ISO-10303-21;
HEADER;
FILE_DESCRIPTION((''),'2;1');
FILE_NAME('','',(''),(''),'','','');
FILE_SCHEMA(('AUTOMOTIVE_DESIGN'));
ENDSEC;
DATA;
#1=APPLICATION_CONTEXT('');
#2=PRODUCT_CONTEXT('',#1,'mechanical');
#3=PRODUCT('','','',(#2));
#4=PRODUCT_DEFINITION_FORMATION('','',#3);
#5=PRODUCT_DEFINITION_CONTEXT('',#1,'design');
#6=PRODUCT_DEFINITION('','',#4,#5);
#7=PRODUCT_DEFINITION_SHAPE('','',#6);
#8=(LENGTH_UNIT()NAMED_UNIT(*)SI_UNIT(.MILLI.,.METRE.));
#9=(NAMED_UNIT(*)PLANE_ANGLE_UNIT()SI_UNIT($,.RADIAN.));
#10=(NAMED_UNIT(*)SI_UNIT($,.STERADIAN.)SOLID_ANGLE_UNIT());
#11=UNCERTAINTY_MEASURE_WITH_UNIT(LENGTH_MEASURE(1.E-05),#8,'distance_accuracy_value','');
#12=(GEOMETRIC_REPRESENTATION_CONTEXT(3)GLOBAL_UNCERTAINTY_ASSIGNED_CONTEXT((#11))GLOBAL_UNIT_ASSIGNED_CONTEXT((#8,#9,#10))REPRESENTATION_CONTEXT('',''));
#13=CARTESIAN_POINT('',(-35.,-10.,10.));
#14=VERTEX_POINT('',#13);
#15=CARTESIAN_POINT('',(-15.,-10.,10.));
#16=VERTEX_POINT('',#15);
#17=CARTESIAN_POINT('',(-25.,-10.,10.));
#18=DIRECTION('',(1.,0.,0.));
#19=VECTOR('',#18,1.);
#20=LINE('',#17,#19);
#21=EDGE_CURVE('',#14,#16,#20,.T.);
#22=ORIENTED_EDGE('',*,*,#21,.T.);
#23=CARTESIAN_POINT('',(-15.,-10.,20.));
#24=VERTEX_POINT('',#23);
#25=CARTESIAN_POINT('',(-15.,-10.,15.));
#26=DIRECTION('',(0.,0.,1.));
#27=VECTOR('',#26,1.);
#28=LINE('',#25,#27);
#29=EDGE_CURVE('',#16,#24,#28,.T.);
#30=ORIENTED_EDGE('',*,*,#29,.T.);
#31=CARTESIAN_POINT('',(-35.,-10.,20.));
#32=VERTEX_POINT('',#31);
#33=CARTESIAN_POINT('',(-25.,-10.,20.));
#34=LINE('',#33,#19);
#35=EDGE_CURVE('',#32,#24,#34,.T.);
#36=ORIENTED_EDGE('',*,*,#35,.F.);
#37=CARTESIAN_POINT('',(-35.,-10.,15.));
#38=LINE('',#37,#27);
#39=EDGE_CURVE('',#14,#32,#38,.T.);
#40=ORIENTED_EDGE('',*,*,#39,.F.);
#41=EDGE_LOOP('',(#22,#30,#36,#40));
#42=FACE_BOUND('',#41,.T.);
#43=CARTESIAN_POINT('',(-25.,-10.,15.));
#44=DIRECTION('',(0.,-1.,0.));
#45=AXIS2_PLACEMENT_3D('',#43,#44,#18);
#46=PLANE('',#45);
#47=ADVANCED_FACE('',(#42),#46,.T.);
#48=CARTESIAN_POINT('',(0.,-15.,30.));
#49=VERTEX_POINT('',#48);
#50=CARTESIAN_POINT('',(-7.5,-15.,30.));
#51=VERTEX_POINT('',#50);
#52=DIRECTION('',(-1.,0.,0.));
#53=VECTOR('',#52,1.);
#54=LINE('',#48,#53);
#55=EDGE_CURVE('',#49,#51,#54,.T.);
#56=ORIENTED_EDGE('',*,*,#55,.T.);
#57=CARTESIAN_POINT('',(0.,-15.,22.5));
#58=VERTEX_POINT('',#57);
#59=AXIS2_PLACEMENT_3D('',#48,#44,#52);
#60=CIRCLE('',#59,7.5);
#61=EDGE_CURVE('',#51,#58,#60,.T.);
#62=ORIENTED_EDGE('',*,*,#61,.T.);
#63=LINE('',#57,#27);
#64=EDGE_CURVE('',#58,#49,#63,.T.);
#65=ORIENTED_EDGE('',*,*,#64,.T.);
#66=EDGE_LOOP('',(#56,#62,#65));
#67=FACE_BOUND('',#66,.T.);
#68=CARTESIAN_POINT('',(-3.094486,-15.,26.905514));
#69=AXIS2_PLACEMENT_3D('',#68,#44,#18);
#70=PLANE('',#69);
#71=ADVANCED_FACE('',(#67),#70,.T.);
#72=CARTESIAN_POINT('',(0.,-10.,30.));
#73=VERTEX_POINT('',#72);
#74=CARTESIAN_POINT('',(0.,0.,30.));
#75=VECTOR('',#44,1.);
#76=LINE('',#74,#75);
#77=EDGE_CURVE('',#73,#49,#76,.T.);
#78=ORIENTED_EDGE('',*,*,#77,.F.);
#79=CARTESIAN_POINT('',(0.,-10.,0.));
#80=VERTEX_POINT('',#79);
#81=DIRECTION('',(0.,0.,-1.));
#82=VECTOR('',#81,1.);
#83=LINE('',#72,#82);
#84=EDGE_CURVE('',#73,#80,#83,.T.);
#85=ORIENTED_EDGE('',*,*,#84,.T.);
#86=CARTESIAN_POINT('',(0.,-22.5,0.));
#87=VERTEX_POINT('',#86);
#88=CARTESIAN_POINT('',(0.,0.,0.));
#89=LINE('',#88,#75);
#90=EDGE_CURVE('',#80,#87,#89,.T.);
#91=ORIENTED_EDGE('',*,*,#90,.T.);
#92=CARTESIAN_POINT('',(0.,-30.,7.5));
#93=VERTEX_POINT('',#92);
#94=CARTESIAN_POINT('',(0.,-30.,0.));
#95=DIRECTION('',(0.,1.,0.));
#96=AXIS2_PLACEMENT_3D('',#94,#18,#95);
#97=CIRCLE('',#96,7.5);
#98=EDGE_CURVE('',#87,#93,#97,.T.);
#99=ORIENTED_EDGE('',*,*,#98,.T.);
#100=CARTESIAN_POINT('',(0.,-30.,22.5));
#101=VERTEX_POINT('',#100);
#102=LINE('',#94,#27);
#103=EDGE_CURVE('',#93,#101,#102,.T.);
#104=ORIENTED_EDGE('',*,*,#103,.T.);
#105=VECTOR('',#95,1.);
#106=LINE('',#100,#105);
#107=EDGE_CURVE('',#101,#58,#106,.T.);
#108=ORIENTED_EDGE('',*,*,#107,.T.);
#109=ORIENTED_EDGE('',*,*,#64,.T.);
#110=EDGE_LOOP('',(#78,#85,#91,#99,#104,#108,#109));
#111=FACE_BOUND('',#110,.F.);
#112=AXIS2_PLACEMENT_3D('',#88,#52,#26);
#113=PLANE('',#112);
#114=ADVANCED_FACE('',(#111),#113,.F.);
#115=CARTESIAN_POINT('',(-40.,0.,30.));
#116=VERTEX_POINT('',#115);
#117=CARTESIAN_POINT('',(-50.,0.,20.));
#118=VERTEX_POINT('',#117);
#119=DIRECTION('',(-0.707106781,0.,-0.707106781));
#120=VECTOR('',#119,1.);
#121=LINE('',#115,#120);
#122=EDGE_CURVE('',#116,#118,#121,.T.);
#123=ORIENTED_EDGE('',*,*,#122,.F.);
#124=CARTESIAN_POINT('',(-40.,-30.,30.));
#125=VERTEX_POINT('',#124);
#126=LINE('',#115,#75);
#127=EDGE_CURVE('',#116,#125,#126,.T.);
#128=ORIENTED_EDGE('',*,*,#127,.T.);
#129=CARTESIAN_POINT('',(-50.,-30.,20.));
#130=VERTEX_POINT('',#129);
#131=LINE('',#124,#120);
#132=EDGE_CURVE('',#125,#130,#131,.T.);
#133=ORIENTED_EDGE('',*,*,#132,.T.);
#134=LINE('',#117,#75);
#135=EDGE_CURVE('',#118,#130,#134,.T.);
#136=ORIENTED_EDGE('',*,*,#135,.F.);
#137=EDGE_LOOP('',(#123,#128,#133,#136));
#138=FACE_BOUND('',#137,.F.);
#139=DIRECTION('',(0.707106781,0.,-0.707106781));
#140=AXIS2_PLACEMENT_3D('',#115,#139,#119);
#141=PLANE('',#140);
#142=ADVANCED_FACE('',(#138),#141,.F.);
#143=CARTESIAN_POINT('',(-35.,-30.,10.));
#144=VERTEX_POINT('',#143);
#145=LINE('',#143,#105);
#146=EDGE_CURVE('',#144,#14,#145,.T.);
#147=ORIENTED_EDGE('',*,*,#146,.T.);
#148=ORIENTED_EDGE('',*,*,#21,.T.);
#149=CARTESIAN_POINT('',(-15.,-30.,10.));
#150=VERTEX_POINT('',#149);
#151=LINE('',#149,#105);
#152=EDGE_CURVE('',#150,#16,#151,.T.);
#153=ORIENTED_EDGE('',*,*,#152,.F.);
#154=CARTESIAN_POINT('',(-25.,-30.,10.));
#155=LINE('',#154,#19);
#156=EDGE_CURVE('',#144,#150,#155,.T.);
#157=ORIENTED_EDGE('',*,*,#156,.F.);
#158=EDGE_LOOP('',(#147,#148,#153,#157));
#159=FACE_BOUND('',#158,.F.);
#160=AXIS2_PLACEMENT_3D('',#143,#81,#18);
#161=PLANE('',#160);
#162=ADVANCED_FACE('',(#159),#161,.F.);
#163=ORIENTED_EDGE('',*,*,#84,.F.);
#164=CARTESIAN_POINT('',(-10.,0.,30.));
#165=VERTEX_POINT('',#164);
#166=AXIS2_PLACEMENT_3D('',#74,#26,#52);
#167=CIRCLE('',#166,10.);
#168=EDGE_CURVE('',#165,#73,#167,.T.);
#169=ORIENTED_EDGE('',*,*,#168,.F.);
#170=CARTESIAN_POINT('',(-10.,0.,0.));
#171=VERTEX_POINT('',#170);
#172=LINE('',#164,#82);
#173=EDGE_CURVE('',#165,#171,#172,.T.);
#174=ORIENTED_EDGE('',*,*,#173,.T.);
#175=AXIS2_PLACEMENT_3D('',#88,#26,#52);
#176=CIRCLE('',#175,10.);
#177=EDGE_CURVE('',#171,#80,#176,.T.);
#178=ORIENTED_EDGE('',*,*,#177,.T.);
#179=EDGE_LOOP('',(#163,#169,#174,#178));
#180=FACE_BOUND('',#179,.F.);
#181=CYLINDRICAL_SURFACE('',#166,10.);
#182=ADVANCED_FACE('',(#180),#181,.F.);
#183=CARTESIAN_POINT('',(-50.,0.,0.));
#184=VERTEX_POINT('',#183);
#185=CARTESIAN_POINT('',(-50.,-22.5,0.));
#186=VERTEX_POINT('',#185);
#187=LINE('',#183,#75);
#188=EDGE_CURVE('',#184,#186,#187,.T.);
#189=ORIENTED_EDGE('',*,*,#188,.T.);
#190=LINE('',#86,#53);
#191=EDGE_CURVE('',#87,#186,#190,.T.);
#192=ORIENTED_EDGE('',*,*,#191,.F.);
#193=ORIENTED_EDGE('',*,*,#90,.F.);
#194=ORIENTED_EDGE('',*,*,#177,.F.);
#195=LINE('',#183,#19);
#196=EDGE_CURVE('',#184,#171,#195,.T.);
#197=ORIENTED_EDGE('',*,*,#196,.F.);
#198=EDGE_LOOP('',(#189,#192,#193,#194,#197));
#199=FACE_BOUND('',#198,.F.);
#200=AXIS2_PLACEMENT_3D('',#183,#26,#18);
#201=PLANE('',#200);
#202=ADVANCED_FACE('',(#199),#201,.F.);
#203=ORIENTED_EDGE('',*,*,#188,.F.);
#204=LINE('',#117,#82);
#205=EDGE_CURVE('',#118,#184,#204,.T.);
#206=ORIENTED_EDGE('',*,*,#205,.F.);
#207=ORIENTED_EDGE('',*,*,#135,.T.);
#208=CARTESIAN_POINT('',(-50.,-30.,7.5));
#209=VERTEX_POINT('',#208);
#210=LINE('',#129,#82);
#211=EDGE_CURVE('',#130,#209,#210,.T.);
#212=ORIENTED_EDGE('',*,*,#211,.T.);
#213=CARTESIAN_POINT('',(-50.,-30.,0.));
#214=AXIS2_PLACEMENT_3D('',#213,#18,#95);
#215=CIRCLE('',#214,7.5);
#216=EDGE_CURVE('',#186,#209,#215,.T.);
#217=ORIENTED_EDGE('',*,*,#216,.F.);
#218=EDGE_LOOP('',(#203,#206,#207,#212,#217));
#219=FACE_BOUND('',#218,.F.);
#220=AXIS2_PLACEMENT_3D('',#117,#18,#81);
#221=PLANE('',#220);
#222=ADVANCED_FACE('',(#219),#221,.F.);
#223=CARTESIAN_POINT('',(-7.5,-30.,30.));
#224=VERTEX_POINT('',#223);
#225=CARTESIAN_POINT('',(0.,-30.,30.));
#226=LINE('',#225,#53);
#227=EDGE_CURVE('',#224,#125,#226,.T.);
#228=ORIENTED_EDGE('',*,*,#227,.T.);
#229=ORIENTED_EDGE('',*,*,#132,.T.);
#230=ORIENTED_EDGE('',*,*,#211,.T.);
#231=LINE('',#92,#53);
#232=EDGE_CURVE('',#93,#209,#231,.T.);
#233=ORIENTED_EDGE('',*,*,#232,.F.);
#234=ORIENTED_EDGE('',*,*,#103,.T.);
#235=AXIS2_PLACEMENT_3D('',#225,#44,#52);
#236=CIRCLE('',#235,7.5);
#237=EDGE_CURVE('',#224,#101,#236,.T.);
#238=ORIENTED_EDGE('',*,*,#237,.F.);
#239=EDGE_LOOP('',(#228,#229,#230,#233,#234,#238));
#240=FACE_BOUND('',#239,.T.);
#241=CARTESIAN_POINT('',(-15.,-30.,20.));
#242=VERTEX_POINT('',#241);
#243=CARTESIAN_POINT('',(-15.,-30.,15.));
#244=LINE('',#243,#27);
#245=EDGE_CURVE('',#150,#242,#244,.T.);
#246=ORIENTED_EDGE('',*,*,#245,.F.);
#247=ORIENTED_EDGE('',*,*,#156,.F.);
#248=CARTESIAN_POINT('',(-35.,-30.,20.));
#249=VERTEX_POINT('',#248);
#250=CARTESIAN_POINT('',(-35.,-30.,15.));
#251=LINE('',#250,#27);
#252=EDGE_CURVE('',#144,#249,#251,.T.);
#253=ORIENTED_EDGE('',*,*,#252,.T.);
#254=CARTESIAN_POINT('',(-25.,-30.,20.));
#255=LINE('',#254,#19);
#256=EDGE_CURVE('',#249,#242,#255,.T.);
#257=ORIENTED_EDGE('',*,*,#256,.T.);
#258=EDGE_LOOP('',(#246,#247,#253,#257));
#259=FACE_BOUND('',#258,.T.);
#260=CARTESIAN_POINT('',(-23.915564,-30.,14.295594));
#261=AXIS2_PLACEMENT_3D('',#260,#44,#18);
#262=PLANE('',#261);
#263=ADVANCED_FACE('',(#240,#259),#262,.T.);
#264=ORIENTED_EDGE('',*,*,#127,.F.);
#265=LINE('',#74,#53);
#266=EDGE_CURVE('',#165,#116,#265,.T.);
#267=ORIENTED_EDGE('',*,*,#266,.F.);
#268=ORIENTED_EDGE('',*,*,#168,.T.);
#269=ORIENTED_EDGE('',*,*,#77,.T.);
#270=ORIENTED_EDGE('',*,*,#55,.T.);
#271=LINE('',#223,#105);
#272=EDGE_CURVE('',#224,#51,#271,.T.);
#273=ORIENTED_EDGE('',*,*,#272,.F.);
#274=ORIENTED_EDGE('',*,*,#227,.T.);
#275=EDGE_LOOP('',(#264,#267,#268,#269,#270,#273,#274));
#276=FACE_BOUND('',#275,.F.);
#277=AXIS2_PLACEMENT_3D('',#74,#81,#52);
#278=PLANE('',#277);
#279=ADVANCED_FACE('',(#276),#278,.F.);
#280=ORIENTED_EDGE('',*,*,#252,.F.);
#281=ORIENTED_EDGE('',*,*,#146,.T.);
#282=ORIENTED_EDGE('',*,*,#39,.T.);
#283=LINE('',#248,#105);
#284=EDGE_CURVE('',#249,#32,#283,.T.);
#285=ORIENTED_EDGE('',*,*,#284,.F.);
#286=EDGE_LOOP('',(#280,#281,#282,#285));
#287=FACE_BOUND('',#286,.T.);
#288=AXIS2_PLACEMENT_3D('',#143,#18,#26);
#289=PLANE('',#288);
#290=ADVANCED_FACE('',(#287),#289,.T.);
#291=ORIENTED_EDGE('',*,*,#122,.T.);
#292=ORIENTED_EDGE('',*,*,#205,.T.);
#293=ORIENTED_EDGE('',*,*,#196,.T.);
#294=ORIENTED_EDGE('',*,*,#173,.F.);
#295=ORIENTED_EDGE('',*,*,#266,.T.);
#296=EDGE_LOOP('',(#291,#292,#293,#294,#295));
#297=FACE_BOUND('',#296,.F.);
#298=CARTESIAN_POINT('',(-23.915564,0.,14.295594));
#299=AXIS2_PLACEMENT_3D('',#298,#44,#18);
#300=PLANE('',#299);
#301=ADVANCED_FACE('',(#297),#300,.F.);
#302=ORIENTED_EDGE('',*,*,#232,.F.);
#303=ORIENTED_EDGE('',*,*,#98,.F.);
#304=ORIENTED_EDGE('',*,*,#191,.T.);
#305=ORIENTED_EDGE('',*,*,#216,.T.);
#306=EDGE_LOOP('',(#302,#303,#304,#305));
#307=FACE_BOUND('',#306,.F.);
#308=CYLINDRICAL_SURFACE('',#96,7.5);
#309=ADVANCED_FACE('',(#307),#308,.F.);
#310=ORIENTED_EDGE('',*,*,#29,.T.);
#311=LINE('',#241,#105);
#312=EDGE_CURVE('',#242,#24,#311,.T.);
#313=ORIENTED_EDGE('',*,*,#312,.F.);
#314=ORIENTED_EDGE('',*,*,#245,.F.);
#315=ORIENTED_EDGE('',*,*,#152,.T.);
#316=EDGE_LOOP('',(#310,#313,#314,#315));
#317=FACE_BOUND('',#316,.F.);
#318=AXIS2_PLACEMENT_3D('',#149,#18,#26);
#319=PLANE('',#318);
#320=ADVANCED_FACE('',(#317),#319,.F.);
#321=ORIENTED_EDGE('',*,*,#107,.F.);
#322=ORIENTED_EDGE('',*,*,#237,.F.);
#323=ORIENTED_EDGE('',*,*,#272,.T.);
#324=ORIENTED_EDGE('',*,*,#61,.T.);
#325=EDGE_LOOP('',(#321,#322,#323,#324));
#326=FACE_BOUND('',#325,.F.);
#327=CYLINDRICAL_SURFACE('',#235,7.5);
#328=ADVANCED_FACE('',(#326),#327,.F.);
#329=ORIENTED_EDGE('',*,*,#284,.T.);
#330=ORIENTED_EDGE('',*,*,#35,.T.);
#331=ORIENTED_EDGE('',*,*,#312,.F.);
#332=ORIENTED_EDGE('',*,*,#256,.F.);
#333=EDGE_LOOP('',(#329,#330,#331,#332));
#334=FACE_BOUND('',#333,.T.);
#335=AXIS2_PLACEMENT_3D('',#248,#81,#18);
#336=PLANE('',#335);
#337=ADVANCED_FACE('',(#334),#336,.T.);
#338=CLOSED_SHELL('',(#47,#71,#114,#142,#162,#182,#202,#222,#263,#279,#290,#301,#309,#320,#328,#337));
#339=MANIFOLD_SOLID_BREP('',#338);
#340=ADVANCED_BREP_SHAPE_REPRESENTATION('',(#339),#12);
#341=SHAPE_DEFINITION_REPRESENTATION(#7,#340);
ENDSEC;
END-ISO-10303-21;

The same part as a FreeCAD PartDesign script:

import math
import FreeCAD as App
import Part
import Sketcher

doc = App.newDocument("Part")
body = doc.addObject("PartDesign::Body", "Body")

# Sketch on XZ plane
sketch1 = doc.addObject("Sketcher::SketchObject", "Sketch")
body.addObject(sketch1)
sketch1.AttachmentSupport = (doc.XZ_Plane, [""])
sketch1.MapMode = "FlatFace"
sketch1.addGeometry([
    Part.LineSegment(App.Vector(-50, 0, 0), App.Vector(0, 0, 0)),  # 0
    Part.LineSegment(App.Vector(0, 0, 0), App.Vector(0, 30, 0)),  # 1
    Part.LineSegment(App.Vector(0, 30, 0), App.Vector(-40, 30, 0)),  # 2
    Part.LineSegment(App.Vector(-40, 30, 0), App.Vector(-50, 20, 0)),  # 3
    Part.LineSegment(App.Vector(-50, 20, 0), App.Vector(-50, 0, 0)),  # 4
], False)
sketch1.addConstraint([
    Sketcher.Constraint("Coincident", 0, 2, 1, 1),
    Sketcher.Constraint("Coincident", 1, 2, 2, 1),
    Sketcher.Constraint("Coincident", 2, 2, 3, 1),
    Sketcher.Constraint("Coincident", 3, 2, 4, 1),
    Sketcher.Constraint("Coincident", 4, 2, 0, 1),
    Sketcher.Constraint("Horizontal", 0),
    Sketcher.Constraint("Vertical", 1),
    Sketcher.Constraint("Horizontal", 2),
    Sketcher.Constraint("Vertical", 4),
    Sketcher.Constraint("Coincident", 0, 2, -1, 1),
    Sketcher.Constraint("DistanceX", 0, 1, 0, 2, 50.0),
    Sketcher.Constraint("DistanceX", 2, 2, 2, 1, 40.0),
    Sketcher.Constraint("DistanceY", 1, 1, 1, 2, 30.0),
    Sketcher.Constraint("DistanceY", 4, 2, 4, 1, 20.0),
])
pad1 = doc.addObject("PartDesign::Pad", "Pad")
body.addObject(pad1)
pad1.Profile = sketch1
pad1.Length = 30

# Sketch on XZ plane
sketch2 = doc.addObject("Sketcher::SketchObject", "Sketch001")
body.addObject(sketch2)
sketch2.AttachmentSupport = (doc.XZ_Plane, [""])
sketch2.MapMode = "FlatFace"
sketch2.AttachmentOffset = App.Placement(App.Vector(0, 0, 30), App.Rotation())
sketch2.addGeometry([
    Part.LineSegment(App.Vector(-35, 20, 0), App.Vector(-35, 10, 0)),
    Part.LineSegment(App.Vector(-35, 10, 0), App.Vector(-15, 10, 0)),
    Part.LineSegment(App.Vector(-15, 10, 0), App.Vector(-15, 20, 0)),
    Part.LineSegment(App.Vector(-15, 20, 0), App.Vector(-35, 20, 0)),
], False)
sketch2.addConstraint([
    Sketcher.Constraint("Coincident", 0, 2, 1, 1),
    Sketcher.Constraint("Coincident", 1, 2, 2, 1),
    Sketcher.Constraint("Coincident", 2, 2, 3, 1),
    Sketcher.Constraint("Coincident", 3, 2, 0, 1),
    Sketcher.Constraint("Vertical", 0),
    Sketcher.Constraint("Horizontal", 1),
    Sketcher.Constraint("Vertical", 2),
    Sketcher.Constraint("Horizontal", 3),
    Sketcher.Constraint("DistanceX", 1, 1, 1, 2, 20.0),
    Sketcher.Constraint("DistanceY", 0, 2, 0, 1, 10.0),
    Sketcher.Constraint("DistanceX", 0, 2, -1, 1, 35.0),
    Sketcher.Constraint("DistanceY", -1, 1, 0, 2, 10.0),
])
pocket1 = doc.addObject("PartDesign::Pocket", "Pocket")
body.addObject(pocket1)
pocket1.Profile = sketch2
pocket1.Length = 20

# Sketch on XZ plane
sketch3 = doc.addObject("Sketcher::SketchObject", "Sketch002")
body.addObject(sketch3)
sketch3.AttachmentSupport = (doc.XZ_Plane, [""])
sketch3.MapMode = "FlatFace"
sketch3.AttachmentOffset = App.Placement(App.Vector(0, 0, 30), App.Rotation())
sketch3.addGeometry([
    Part.LineSegment(App.Vector(0, 30, 0), App.Vector(-8, 30, 0)),
    Part.ArcOfCircle(Part.Circle(App.Vector(0, 30, 0), App.Vector(0, 0, 1), 8), math.radians(180), math.radians(270)),
    Part.LineSegment(App.Vector(0, 22, 0), App.Vector(0, 30, 0)),
], False)
sketch3.addConstraint([
    Sketcher.Constraint("Coincident", 0, 2, 1, 1),
    Sketcher.Constraint("Coincident", 1, 2, 2, 1),
    Sketcher.Constraint("Coincident", 2, 2, 0, 1),
    Sketcher.Constraint("Horizontal", 0),
    Sketcher.Constraint("Vertical", 2),
    Sketcher.Constraint("Coincident", 2, 2, 1, 3),
    Sketcher.Constraint("PointOnObject", 1, 3, -2),
    Sketcher.Constraint("Radius", 1, 7.5),
    Sketcher.Constraint("DistanceY", -1, 1, 1, 3, 30.0),
])
pocket2 = doc.addObject("PartDesign::Pocket", "Pocket001")
body.addObject(pocket2)
pocket2.Profile = sketch3
pocket2.Length = 15

# Sketch on YZ plane
sketch4 = doc.addObject("Sketcher::SketchObject", "Sketch003")
body.addObject(sketch4)
sketch4.AttachmentSupport = (doc.YZ_Plane, [""])
sketch4.MapMode = "FlatFace"
sketch4.addGeometry([
    Part.LineSegment(App.Vector(-30, 0, 0), App.Vector(-22, 0, 0)),
    Part.ArcOfCircle(Part.Circle(App.Vector(-30, 0, 0), App.Vector(0, 0, 1), 8), math.radians(0), math.radians(90)),
    Part.LineSegment(App.Vector(-30, 8, 0), App.Vector(-30, 0, 0)),
], False)
sketch4.addConstraint([
    Sketcher.Constraint("Coincident", 0, 2, 1, 1),
    Sketcher.Constraint("Coincident", 1, 2, 2, 1),
    Sketcher.Constraint("Coincident", 2, 2, 0, 1),
    Sketcher.Constraint("Horizontal", 0),
    Sketcher.Constraint("Vertical", 2),
    Sketcher.Constraint("Coincident", 2, 2, 1, 3),
    Sketcher.Constraint("PointOnObject", 1, 3, -1),
    Sketcher.Constraint("Radius", 1, 7.5),
    Sketcher.Constraint("DistanceX", 1, 3, -1, 1, 30.0),
])
pocket3 = doc.addObject("PartDesign::Pocket", "Pocket002")
body.addObject(pocket3)
pocket3.Profile = sketch4
pocket3.Type = "ThroughAll"

# Sketch on XY plane
sketch5 = doc.addObject("Sketcher::SketchObject", "Sketch004")
body.addObject(sketch5)
sketch5.AttachmentSupport = (doc.XY_Plane, [""])
sketch5.MapMode = "FlatFace"
sketch5.AttachmentOffset = App.Placement(App.Vector(0, 0, 30), App.Rotation())
sketch5.addGeometry([
    Part.LineSegment(App.Vector(0, 0, 0), App.Vector(-10, 0, 0)),
    Part.ArcOfCircle(Part.Circle(App.Vector(0, 0, 0), App.Vector(0, 0, 1), 10), math.radians(180), math.radians(270)),
    Part.LineSegment(App.Vector(0, -10, 0), App.Vector(0, 0, 0)),
], False)
sketch5.addConstraint([
    Sketcher.Constraint("Coincident", 0, 2, 1, 1),
    Sketcher.Constraint("Coincident", 1, 2, 2, 1),
    Sketcher.Constraint("Coincident", 2, 2, 0, 1),
    Sketcher.Constraint("Horizontal", 0),
    Sketcher.Constraint("Vertical", 2),
    Sketcher.Constraint("Coincident", 1, 3, -1, 1),
    Sketcher.Constraint("Coincident", 2, 2, -1, 1),
    Sketcher.Constraint("Radius", 1, 10.0),
])
pocket4 = doc.addObject("PartDesign::Pocket", "Pocket003")
body.addObject(pocket4)
pocket4.Profile = sketch5
pocket4.Type = "ThroughAll"

doc.recompute()
